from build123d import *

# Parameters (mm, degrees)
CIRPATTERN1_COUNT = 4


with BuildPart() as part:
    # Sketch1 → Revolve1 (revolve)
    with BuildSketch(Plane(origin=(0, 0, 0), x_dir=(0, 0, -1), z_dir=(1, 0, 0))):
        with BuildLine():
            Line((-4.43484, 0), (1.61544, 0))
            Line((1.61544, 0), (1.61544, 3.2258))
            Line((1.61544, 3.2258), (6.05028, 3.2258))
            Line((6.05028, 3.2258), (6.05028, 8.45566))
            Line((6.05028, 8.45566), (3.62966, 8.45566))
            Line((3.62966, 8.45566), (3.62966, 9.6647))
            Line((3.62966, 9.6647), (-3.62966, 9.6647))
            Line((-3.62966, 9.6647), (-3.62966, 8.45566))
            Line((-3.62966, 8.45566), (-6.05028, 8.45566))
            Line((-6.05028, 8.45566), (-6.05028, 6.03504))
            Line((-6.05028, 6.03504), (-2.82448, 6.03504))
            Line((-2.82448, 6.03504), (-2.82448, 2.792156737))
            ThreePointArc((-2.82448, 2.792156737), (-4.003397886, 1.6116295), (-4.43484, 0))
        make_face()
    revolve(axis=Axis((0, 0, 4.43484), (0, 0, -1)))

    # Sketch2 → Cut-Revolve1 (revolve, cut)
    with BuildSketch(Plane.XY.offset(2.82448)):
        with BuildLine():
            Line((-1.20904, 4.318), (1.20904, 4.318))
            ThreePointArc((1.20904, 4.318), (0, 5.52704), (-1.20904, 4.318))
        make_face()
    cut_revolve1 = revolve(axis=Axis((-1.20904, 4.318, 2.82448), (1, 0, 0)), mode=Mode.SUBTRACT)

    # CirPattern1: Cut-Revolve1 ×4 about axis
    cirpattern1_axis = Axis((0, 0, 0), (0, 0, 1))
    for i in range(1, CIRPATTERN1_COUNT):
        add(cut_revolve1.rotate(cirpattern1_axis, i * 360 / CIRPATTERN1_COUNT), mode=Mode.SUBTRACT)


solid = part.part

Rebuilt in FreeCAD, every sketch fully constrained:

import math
import FreeCAD as App
import Part
import Sketcher
Q = App.Units.Quantity

doc = App.newDocument("Part")
body = doc.addObject("PartDesign::Body", "Body")

sketch1 = doc.addObject("Sketcher::SketchObject", "Sketch")
body.addObject(sketch1)
sketch1.AttachmentSupport = (doc.YZ_Plane, [""])
sketch1.MapMode = "FlatFace"
sketch1.addGeometry(Part.LineSegment(App.Vector(0, 4.43484, 0), App.Vector(0, -1.61544, 0)), False)
sketch1.addGeometry(Part.LineSegment(App.Vector(0, -1.61544, 0), App.Vector(3.2258, -1.61544, 0)), False)
sketch1.addGeometry(Part.LineSegment(App.Vector(3.2258, -1.61544, 0), App.Vector(3.2258, -6.05028, 0)), False)
sketch1.addGeometry(Part.LineSegment(App.Vector(3.2258, -6.05028, 0), App.Vector(8.45566, -6.05028, 0)), False)
sketch1.addGeometry(Part.LineSegment(App.Vector(8.45566, -6.05028, 0), App.Vector(8.45566, -3.62966, 0)), False)
sketch1.addGeometry(Part.LineSegment(App.Vector(8.45566, -3.62966, 0), App.Vector(9.6647, -3.62966, 0)), False)
sketch1.addGeometry(Part.LineSegment(App.Vector(9.6647, -3.62966, 0), App.Vector(9.6647, 3.62966, 0)), False)
sketch1.addGeometry(Part.LineSegment(App.Vector(9.6647, 3.62966, 0), App.Vector(8.45566, 3.62966, 0)), False)
sketch1.addGeometry(Part.LineSegment(App.Vector(8.45566, 3.62966, 0), App.Vector(8.45566, 6.05028, 0)), False)
sketch1.addGeometry(Part.LineSegment(App.Vector(8.45566, 6.05028, 0), App.Vector(6.03504, 6.05028, 0)), False)
sketch1.addGeometry(Part.LineSegment(App.Vector(6.03504, 6.05028, 0), App.Vector(6.03504, 2.82448, 0)), False)
sketch1.addGeometry(Part.LineSegment(App.Vector(6.03504, 2.82448, 0), App.Vector(2.792157, 2.82448, 0)), False)
sketch1.addGeometry(Part.ArcOfCircle(Part.Circle(App.Vector(0, 1.20904, 0), App.Vector(0, 0, 1), 3.2258), math.radians(30.052108), math.radians(90)), False)
sketch1.addConstraint(Sketcher.Constraint("Coincident", 0, 2, 1, 1))
sketch1.addConstraint(Sketcher.Constraint("Coincident", 1, 2, 2, 1))
sketch1.addConstraint(Sketcher.Constraint("Coincident", 2, 2, 3, 1))
sketch1.addConstraint(Sketcher.Constraint("Coincident", 3, 2, 4, 1))
sketch1.addConstraint(Sketcher.Constraint("Coincident", 4, 2, 5, 1))
sketch1.addConstraint(Sketcher.Constraint("Coincident", 5, 2, 6, 1))
sketch1.addConstraint(Sketcher.Constraint("Coincident", 6, 2, 7, 1))
sketch1.addConstraint(Sketcher.Constraint("Coincident", 7, 2, 8, 1))
sketch1.addConstraint(Sketcher.Constraint("Coincident", 8, 2, 9, 1))
sketch1.addConstraint(Sketcher.Constraint("Coincident", 9, 2, 10, 1))
sketch1.addConstraint(Sketcher.Constraint("Coincident", 10, 2, 11, 1))
sketch1.addConstraint(Sketcher.Constraint("Coincident", 11, 2, 12, 1))
sketch1.addConstraint(Sketcher.Constraint("Coincident", 12, 2, 0, 1))
sketch1.addConstraint(Sketcher.Constraint("Vertical", 0))
sketch1.addConstraint(Sketcher.Constraint("Horizontal", 1))
sketch1.addConstraint(Sketcher.Constraint("Vertical", 2))
sketch1.addConstraint(Sketcher.Constraint("Horizontal", 3))
sketch1.addConstraint(Sketcher.Constraint("Vertical", 4))
sketch1.addConstraint(Sketcher.Constraint("Horizontal", 5))
sketch1.addConstraint(Sketcher.Constraint("Vertical", 6))
sketch1.addConstraint(Sketcher.Constraint("Horizontal", 7))
sketch1.addConstraint(Sketcher.Constraint("Vertical", 8))
sketch1.addConstraint(Sketcher.Constraint("Horizontal", 9))
sketch1.addConstraint(Sketcher.Constraint("Vertical", 10))
sketch1.addConstraint(Sketcher.Constraint("Horizontal", 11))
sketch1.addConstraint(Sketcher.Constraint("Symmetric", 4, 2, 7, 2, -1))
sketch1.addConstraint(Sketcher.Constraint("PointOnObject", 12, 3, -2))
sketch1.addConstraint(Sketcher.Constraint("PointOnObject", 0, 2, -2))
sketch1.addConstraint(Sketcher.Constraint("Equal", 9, 4))
sketch1.addConstraint(Sketcher.Constraint("Equal", 4, 8))
sketch1.addConstraint(Sketcher.Constraint("Equal", 1, 10))
sketch1.addConstraint(Sketcher.Constraint("Radius", 12, Q("0.127 in")))
sketch1.addConstraint(Sketcher.Constraint("DistanceX", 1, 1, 1, 2, Q("0.127 in")))
sketch1.addConstraint(Sketcher.Constraint("DistanceX", 3, 1, 3, 2, Q("0.2059 in")))
sketch1.addConstraint(Sketcher.Constraint("DistanceX", 5, 1, 5, 2, Q("0.0476 in")))
sketch1.addConstraint(Sketcher.Constraint("DistanceX", 9, 2, 9, 1, Q("0.0953 in")))
sketch1.addConstraint(Sketcher.Constraint("DistanceY", 0, 2, 0, 1, Q("0.2382 in")))
sketch1.addConstraint(Sketcher.Constraint("DistanceY", 2, 2, 2, 1, Q("0.1746 in")))
sketch1.addConstraint(Sketcher.Constraint("DistanceY", 6, 1, 6, 2, Q("0.2858 in")))
revolution = doc.addObject("PartDesign::Revolution", "Revolution")
body.addObject(revolution)
revolution.Profile = sketch1
revolution.ReferenceAxis = (sketch1, ["V_Axis"])
revolution.Angle = 360

sketch2 = doc.addObject("Sketcher::SketchObject", "Sketch001")
body.addObject(sketch2)
sketch2.AttachmentSupport = (doc.XY_Plane, [""])
sketch2.MapMode = "FlatFace"
sketch2.AttachmentOffset = App.Placement(App.Vector(0, 0, 0.1112 * 25.4), App.Rotation())
sketch2.addGeometry(Part.LineSegment(App.Vector(-1.20904, 4.318, 0), App.Vector(1.20904, 4.318, 0)), False)
sketch2.addGeometry(Part.ArcOfCircle(Part.Circle(App.Vector(0, 4.318, 0), App.Vector(0, 0, 1), 1.20904), math.radians(0), math.radians(180)), False)
sketch2.addGeometry(Part.LineSegment(App.Vector(-1.20904, 4.318, 0), App.Vector(1.20904, 4.318, 0)), True)
sketch2.addConstraint(Sketcher.Constraint("Coincident", 0, 1, 1, 2))
sketch2.addConstraint(Sketcher.Constraint("Coincident", 1, 1, 0, 2))
sketch2.addConstraint(Sketcher.Constraint("Horizontal", 0))
sketch2.addConstraint(Sketcher.Constraint("Horizontal", 2))
sketch2.addConstraint(Sketcher.Constraint("Coincident", 2, 1, 0, 1))
sketch2.addConstraint(Sketcher.Constraint("PointOnObject", 1, 3, -2))
sketch2.addConstraint(Sketcher.Constraint("Horizontal", 1, 3, 0, 1))
sketch2.addConstraint(Sketcher.Constraint("Equal", 0, 2))
sketch2.addConstraint(Sketcher.Constraint("Radius", 1, Q("0.0476 in")))
sketch2.addConstraint(Sketcher.Constraint("DistanceY", -1, 1, 1, 3, Q("0.17 in")))
groove = doc.addObject("PartDesign::Groove", "Groove")
body.addObject(groove)
groove.Profile = sketch2
groove.ReferenceAxis = (sketch2, ["Axis0"])
groove.Angle = 360
doc.recompute()

polarpattern = doc.addObject("PartDesign::PolarPattern", "PolarPattern")
body.addObject(polarpattern)
polarpattern.Originals = [groove]
polarpattern.Axis = (doc.Z_Axis, [""])
polarpattern.Angle = 360
polarpattern.Occurrences = 4
body.Tip = polarpattern

doc.recompute()
